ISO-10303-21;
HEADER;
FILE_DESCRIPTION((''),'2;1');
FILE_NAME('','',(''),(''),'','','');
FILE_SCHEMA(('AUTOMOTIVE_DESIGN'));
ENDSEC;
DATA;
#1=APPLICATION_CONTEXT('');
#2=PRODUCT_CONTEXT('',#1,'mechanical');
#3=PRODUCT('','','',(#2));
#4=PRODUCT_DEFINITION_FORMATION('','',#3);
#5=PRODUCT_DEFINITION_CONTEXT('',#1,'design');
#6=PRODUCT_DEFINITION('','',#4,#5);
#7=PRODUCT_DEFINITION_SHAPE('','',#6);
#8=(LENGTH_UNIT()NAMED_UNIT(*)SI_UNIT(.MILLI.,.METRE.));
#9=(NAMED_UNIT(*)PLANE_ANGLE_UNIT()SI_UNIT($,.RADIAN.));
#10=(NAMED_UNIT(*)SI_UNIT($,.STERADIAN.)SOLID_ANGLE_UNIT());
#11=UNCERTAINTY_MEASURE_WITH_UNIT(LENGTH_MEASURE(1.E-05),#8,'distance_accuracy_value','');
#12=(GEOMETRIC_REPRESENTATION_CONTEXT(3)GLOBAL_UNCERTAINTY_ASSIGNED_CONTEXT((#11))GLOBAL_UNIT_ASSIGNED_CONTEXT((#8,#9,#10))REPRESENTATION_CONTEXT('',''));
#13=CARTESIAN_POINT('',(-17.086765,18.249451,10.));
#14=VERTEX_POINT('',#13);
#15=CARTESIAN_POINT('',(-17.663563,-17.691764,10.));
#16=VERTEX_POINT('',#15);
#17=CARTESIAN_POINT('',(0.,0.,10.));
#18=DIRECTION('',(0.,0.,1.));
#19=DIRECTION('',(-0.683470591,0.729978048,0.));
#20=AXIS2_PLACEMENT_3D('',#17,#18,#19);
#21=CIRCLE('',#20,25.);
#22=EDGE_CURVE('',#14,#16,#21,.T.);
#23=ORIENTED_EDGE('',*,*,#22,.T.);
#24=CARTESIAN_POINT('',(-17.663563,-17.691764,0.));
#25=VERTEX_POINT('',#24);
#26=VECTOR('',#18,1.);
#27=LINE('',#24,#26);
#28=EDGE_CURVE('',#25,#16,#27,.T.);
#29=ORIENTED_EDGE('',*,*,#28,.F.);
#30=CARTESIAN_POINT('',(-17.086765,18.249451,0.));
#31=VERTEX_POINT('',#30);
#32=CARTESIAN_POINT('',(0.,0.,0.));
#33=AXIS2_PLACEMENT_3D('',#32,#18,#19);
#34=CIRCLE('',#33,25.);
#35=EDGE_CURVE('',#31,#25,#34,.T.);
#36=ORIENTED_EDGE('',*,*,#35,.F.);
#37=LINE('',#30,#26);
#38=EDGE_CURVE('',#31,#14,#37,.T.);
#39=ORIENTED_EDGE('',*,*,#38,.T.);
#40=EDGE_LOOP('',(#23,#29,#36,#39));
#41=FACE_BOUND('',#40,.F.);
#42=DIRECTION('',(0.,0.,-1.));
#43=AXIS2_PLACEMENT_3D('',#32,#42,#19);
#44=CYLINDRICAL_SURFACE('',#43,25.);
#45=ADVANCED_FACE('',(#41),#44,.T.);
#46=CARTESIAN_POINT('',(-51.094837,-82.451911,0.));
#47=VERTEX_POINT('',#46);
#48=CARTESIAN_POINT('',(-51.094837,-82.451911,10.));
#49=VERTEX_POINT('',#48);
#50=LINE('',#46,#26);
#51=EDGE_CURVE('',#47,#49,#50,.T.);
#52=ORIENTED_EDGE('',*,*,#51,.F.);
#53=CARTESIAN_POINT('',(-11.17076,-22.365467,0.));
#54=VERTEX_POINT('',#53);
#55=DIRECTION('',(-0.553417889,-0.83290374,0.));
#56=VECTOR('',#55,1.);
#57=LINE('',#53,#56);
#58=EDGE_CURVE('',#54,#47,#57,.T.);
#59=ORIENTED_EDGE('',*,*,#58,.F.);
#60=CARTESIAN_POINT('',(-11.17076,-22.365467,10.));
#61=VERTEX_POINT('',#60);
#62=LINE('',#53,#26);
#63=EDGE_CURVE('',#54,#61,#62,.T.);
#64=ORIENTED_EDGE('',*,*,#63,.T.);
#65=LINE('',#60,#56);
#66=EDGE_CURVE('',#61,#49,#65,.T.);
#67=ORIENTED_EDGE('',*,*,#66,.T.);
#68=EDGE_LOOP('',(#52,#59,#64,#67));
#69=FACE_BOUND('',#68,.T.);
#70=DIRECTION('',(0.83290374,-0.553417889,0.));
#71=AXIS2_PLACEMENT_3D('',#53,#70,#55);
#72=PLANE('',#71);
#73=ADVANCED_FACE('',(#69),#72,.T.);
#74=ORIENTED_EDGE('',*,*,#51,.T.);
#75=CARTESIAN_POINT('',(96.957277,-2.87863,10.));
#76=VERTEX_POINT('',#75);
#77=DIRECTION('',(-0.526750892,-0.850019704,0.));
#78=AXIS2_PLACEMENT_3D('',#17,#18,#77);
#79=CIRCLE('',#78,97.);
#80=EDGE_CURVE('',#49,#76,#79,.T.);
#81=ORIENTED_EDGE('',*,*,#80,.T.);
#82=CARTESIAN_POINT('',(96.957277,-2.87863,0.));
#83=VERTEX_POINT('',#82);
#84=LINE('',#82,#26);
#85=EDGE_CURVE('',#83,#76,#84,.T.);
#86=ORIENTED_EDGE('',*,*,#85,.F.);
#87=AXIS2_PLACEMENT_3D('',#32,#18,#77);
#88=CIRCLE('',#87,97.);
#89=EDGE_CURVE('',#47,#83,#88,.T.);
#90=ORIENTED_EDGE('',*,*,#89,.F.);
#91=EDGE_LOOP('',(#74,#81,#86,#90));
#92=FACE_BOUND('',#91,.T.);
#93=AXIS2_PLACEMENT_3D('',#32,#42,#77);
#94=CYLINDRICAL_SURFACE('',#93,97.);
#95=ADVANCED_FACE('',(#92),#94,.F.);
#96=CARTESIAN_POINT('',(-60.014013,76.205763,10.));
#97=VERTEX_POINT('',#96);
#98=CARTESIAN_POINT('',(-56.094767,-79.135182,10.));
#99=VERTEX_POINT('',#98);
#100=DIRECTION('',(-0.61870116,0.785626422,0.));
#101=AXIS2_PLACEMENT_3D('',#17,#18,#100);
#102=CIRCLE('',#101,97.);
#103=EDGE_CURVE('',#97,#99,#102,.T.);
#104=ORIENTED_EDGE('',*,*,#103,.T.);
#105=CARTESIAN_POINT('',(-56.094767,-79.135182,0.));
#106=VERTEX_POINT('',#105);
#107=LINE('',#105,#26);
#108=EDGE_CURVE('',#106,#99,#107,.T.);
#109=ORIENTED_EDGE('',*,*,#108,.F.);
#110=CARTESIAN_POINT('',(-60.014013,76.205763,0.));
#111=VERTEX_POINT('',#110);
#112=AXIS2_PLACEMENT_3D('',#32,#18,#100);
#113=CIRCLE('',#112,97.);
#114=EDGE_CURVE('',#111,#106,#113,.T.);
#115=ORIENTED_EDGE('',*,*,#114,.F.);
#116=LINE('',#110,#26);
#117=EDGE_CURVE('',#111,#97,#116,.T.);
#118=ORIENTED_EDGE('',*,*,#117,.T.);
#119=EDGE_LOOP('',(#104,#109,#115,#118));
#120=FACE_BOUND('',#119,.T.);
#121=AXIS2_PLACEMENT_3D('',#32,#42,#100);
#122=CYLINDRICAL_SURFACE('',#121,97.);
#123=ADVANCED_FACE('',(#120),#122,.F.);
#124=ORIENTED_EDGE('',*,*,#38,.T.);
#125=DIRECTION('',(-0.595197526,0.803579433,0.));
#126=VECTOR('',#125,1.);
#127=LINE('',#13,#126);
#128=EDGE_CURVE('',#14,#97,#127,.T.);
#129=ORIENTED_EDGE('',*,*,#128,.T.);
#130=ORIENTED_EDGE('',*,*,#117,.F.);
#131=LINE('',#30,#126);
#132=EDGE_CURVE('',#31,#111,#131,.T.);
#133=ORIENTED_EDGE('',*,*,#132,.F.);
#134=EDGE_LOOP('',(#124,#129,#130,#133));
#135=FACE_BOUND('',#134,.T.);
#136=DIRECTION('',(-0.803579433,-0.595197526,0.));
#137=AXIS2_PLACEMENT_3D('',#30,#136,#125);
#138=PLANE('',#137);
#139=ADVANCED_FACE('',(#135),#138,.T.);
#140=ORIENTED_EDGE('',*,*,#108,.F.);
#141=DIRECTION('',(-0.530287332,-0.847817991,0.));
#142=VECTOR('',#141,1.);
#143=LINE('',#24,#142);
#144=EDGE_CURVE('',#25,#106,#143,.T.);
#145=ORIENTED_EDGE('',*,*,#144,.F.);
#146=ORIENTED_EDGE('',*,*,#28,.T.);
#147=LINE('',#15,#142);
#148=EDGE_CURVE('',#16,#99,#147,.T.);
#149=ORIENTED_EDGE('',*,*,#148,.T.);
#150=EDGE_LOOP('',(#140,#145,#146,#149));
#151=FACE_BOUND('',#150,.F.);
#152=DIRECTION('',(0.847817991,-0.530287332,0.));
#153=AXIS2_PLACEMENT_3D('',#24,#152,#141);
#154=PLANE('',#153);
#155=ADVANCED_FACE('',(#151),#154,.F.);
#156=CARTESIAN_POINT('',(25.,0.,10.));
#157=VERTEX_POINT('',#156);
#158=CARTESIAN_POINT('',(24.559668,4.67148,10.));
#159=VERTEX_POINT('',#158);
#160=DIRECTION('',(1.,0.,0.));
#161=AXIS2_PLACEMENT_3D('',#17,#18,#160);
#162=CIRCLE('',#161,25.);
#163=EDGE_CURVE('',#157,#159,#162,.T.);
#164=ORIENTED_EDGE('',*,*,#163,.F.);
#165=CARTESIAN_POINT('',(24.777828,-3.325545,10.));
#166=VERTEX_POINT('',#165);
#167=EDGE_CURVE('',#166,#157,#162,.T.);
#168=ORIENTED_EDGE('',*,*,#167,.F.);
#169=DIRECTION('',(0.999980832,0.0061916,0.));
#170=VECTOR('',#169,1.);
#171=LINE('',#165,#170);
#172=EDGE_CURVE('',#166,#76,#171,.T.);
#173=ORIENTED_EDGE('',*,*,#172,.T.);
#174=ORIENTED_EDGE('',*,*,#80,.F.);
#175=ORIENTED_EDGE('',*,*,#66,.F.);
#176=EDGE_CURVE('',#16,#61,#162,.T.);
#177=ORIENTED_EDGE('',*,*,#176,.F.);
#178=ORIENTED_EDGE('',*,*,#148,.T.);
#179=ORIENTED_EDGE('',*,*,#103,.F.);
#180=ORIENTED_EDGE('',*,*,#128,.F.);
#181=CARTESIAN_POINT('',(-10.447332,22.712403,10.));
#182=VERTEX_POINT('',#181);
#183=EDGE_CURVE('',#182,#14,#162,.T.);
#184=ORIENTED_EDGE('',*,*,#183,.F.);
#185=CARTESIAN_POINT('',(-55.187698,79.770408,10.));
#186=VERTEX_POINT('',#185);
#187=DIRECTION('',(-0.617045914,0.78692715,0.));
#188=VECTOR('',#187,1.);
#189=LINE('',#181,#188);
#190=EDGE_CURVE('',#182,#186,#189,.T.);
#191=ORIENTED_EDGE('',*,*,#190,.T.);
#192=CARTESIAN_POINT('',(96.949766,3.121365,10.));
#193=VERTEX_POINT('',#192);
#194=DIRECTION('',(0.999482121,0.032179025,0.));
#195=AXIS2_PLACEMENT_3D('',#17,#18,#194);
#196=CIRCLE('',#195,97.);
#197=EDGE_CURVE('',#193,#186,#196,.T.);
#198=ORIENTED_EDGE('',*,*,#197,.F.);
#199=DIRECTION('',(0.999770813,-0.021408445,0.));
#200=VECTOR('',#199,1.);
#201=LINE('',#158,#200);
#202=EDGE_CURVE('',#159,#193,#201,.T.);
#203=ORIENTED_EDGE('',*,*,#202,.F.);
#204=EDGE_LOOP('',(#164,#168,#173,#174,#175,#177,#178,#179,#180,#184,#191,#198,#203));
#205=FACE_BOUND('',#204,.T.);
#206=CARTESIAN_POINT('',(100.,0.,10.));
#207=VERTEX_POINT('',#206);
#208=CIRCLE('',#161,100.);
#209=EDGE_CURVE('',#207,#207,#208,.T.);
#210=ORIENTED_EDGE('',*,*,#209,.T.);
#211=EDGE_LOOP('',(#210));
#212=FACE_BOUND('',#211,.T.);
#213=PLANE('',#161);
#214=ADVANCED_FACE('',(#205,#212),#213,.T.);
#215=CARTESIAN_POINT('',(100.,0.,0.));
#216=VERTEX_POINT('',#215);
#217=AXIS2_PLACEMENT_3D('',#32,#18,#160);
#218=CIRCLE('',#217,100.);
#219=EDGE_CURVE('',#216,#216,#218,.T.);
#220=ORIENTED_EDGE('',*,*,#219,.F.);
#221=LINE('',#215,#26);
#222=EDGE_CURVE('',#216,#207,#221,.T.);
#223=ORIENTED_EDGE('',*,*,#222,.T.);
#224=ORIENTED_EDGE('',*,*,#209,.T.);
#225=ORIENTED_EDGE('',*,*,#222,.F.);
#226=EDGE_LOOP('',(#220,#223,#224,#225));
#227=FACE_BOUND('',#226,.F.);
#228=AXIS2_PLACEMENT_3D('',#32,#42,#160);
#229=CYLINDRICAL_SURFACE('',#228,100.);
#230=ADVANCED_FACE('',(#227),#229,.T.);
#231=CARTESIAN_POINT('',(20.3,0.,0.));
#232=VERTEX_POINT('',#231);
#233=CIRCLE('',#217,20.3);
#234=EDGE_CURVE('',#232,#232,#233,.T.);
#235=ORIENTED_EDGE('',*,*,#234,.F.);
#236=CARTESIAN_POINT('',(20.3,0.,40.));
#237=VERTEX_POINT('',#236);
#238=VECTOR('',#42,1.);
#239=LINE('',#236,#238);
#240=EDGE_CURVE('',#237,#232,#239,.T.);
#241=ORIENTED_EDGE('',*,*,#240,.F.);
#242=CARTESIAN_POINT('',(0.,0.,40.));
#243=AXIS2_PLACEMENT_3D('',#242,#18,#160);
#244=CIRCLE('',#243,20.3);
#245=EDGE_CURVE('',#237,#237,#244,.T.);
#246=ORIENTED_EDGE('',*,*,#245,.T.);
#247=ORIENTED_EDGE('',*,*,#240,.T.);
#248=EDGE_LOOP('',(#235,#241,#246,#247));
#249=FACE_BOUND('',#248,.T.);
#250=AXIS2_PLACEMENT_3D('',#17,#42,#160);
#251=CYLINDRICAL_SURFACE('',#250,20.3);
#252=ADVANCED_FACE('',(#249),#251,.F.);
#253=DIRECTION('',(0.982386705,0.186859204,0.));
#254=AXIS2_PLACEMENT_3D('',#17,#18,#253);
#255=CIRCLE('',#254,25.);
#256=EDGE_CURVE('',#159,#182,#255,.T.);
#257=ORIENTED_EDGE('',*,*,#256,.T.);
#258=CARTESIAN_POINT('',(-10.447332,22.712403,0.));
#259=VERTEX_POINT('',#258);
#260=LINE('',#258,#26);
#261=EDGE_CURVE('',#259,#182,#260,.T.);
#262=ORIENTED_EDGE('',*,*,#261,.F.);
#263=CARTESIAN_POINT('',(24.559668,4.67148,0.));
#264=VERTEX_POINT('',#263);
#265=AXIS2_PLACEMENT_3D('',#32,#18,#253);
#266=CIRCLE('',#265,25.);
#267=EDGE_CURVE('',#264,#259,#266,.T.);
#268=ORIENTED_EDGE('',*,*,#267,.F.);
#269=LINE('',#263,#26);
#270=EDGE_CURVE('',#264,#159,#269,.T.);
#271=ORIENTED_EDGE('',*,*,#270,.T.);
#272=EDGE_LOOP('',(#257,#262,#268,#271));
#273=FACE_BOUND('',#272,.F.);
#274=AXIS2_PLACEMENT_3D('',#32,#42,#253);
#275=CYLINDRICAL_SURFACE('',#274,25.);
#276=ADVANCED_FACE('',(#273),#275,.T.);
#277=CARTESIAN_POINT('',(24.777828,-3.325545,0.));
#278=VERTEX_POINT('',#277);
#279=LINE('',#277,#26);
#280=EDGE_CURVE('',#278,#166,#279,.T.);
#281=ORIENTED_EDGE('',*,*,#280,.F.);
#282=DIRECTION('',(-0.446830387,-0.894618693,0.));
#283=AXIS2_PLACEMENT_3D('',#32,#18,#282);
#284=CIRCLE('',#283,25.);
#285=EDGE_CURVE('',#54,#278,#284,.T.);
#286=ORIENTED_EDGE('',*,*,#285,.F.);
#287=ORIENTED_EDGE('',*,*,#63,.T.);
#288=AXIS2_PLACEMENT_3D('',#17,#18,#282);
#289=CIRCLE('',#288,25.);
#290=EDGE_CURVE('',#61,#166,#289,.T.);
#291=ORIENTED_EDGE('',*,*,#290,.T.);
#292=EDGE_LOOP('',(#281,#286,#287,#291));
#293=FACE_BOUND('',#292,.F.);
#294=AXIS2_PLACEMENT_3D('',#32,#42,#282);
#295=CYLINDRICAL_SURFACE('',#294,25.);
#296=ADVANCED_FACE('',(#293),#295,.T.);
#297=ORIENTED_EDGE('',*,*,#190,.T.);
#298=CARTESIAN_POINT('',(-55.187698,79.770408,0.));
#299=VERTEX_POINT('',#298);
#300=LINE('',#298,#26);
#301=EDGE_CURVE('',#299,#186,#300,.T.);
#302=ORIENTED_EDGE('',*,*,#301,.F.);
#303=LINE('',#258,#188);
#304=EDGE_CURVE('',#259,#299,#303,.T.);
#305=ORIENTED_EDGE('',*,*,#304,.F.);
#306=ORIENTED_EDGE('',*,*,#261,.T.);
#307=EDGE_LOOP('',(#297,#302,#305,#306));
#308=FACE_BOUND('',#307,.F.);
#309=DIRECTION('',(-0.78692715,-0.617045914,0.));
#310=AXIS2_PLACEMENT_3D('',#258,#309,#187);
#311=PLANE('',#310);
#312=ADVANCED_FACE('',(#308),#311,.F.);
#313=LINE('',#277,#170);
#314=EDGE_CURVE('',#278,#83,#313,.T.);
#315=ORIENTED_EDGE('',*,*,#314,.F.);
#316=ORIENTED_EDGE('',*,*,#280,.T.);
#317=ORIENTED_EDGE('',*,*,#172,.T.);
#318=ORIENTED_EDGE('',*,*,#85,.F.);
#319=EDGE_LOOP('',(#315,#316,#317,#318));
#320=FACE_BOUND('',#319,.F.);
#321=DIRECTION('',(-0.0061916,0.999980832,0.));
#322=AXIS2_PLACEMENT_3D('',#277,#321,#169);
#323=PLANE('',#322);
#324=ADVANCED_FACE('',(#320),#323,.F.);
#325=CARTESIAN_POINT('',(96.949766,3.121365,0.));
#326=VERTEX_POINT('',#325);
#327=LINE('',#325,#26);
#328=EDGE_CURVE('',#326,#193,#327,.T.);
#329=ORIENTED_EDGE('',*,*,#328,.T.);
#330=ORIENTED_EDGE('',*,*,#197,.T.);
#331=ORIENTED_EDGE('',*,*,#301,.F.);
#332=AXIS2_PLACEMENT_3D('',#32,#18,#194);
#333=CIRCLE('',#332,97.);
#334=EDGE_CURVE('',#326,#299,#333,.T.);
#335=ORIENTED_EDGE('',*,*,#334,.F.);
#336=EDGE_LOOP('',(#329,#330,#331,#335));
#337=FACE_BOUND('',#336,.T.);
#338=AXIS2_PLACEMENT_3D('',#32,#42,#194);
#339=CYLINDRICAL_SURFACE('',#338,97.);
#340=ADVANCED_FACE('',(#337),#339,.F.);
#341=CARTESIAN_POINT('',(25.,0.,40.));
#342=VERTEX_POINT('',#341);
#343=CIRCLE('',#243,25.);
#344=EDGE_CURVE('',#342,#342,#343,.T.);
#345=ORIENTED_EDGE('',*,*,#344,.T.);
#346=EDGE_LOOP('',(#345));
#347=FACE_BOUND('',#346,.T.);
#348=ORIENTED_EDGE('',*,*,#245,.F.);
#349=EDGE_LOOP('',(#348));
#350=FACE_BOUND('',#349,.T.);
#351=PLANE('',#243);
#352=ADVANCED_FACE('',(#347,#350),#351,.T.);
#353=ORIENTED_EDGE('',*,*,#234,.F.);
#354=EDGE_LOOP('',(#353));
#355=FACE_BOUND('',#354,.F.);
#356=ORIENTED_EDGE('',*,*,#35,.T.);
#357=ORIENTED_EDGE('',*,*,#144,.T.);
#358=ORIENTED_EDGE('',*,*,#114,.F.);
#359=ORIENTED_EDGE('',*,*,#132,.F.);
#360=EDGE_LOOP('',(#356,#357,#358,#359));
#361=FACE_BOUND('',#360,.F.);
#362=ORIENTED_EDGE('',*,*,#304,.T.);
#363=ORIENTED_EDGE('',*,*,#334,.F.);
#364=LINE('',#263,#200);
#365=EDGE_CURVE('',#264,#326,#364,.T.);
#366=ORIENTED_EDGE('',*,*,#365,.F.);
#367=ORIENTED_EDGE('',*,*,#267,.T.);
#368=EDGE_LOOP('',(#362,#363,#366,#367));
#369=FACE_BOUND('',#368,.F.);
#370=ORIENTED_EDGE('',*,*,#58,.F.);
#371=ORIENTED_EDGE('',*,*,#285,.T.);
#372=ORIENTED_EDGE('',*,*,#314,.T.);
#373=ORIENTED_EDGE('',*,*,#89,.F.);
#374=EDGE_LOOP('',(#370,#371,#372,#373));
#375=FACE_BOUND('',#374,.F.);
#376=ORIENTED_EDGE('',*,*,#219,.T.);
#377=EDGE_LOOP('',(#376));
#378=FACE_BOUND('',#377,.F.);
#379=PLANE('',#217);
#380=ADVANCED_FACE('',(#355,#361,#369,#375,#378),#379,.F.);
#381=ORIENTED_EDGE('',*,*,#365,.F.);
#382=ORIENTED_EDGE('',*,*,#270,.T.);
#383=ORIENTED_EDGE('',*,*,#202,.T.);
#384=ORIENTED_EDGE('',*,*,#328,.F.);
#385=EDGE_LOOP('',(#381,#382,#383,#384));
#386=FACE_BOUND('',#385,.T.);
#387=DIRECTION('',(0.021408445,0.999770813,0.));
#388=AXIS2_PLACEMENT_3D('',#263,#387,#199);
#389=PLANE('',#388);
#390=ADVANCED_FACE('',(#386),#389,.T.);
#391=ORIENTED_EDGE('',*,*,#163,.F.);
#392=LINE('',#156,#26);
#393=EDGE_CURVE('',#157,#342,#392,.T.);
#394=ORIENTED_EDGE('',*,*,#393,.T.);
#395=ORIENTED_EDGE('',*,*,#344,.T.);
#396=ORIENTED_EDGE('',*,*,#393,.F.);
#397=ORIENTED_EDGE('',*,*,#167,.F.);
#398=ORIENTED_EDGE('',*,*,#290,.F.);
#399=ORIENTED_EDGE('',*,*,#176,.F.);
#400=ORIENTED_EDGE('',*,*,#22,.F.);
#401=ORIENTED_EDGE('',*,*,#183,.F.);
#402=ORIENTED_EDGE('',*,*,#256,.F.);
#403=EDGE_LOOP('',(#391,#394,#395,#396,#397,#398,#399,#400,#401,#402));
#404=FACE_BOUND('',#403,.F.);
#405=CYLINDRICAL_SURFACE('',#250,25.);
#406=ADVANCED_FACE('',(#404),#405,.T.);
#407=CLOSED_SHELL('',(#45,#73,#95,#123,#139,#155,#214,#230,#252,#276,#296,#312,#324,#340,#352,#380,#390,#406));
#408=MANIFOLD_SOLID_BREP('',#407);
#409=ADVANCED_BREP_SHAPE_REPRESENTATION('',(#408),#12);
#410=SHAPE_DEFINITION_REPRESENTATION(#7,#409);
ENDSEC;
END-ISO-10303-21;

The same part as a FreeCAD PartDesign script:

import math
import FreeCAD as App
import Part
import Sketcher

V = App.Vector
Q = App.Units.Quantity

doc = App.newDocument("Part")
body = doc.addObject("PartDesign::Body", "Body")

# Sketch on XY plane
sketch1 = body.newObject("Sketcher::SketchObject", "Sketch")
sketch1.AttachmentSupport = (doc.getObject("XY_Plane"), [""])
sketch1.MapMode = "FlatFace"
sketch1.addGeometry([
    Part.Circle(V(0, 0, 0), V(0, 0, 1), 100),  # 0
    Part.ArcOfCircle(Part.Circle(V(0, 0, 0), V(0, 0, 1), 25), math.radians(133.115446), math.radians(225.045702)),  # 1
    Part.LineSegment(V(-17.663563, -17.691764, 0), V(-56.094767, -79.135182, 0)),  # 2
    Part.ArcOfCircle(Part.Circle(V(0, 0, 0), V(0, 0, 1), 97), math.radians(128.221348), math.radians(234.669178)),  # 3
    Part.LineSegment(V(-60.014013, 76.205763, 0), V(-17.086765, 18.249451, 0)),  # 4
    Part.ArcOfCircle(Part.Circle(V(0, 0, 0), V(0, 0, 1), 25), math.radians(-116.540506), math.radians(-7.644245)),  # 5
    Part.LineSegment(V(24.777828, -3.325545, 0), V(96.957277, -2.87863, 0)),  # 6
    Part.ArcOfCircle(Part.Circle(V(0, 0, 0), V(0, 0, 1), 97), math.radians(-121.786187), math.radians(-1.700593)),  # 7
    Part.LineSegment(V(-51.094837, -82.451911, 0), V(-11.17076, -22.365467, 0)),  # 8
    Part.Circle(V(0, 0, 0), V(0, 0, 1), 20.3),  # 9
    Part.ArcOfCircle(Part.Circle(V(0, 0, 0), V(0, 0, 1), 97), math.radians(1.844041), math.radians(124.676714)),  # 10
    Part.LineSegment(V(96.949766, 3.121365, 0), V(24.559668, 4.67148, 0)),  # 11
    Part.ArcOfCircle(Part.Circle(V(0, 0, 0), V(0, 0, 1), 25), math.radians(10.769547), math.radians(114.701654)),  # 12
    Part.LineSegment(V(-10.447332, 22.712403, 0), V(-55.187698, 79.770408, 0)),  # 13
], False)
sketch1.addConstraint([
    Sketcher.Constraint("Coincident", 1, 2, 2, 1),
    Sketcher.Constraint("Coincident", 2, 2, 3, 2),
    Sketcher.Constraint("Coincident", 3, 1, 4, 1),
    Sketcher.Constraint("Coincident", 4, 2, 1, 1),
    Sketcher.Constraint("Coincident", 5, 2, 6, 1),
    Sketcher.Constraint("Coincident", 6, 2, 7, 2),
    Sketcher.Constraint("Coincident", 7, 1, 8, 1),
    Sketcher.Constraint("Coincident", 8, 2, 5, 1),
    Sketcher.Constraint("Coincident", 10, 1, 11, 1),
    Sketcher.Constraint("Coincident", 11, 2, 12, 1),
    Sketcher.Constraint("Coincident", 12, 2, 13, 1),
    Sketcher.Constraint("Coincident", 13, 2, 10, 2),
    Sketcher.Constraint("Coincident", 0, 3, -1, 1),
    Sketcher.Constraint("Coincident", 1, 3, -1, 1),
    Sketcher.Constraint("Coincident", 3, 3, -1, 1),
    Sketcher.Constraint("Coincident", 5, 3, -1, 1),
    Sketcher.Constraint("Coincident", 7, 3, -1, 1),
    Sketcher.Constraint("Coincident", 9, 3, -1, 1),
    Sketcher.Constraint("Coincident", 10, 3, -1, 1),
    Sketcher.Constraint("Coincident", 12, 3, -1, 1),
    Sketcher.Constraint("Equal", 1, 5),
    Sketcher.Constraint("Equal", 3, 7),
    Sketcher.Constraint("Equal", 7, 10),
    Sketcher.Constraint("Equal", 5, 12),
    Sketcher.Constraint("Diameter", 0, Q("200 mm")),
    Sketcher.Constraint("Radius", 1, Q("25 mm")),
    Sketcher.Constraint("Radius", 3, Q("97 mm")),
    Sketcher.Constraint("Diameter", 9, Q("40.6 mm")),
    Sketcher.Constraint("DistanceX", 13, 2, -1, 1, Q("55.187698 mm")),
    Sketcher.Constraint("Distance", 4, Q("72.122692 mm")),
    Sketcher.Constraint("DistanceY", -1, 1, 4, 2, Q("18.249451 mm")),
    Sketcher.Constraint("DistanceY", 6, 2, -1, 1, Q("2.87863 mm")),
    Sketcher.Constraint("DistanceY", 7, 1, -1, 1, Q("82.451911 mm")),
    Sketcher.Constraint("DistanceX", 8, 2, -1, 1, Q("11.17076 mm")),
    Sketcher.Constraint("DistanceY", -1, 1, 11, 2, Q("4.67148 mm")),
    Sketcher.Constraint("DistanceX", 5, 2, 6, 2, Q("72.179449 mm")),
    Sketcher.Constraint("DistanceX", 2, 2, 7, 1, Q("4.999931 mm")),
    Sketcher.Constraint("DistanceX", 10, 1, 6, 2, Q("0.007511 mm")),
    Sketcher.Constraint("DistanceY", 4, 2, 12, 2, Q("4.462952 mm")),
    Sketcher.Constraint("Distance", 2, Q("72.472416 mm")),
])
pad1 = body.newObject("PartDesign::Pad", "Pad")
pad1.Profile = sketch1
pad1.Length = 10

# Sketch on XY plane
sketch2 = body.newObject("Sketcher::SketchObject", "Sketch001")
sketch2.AttachmentSupport = (doc.getObject("XY_Plane"), [""])
sketch2.MapMode = "FlatFace"
sketch2.AttachmentOffset = App.Placement(V(0, 0, 10), App.Rotation())
sketch2.addGeometry([
    Part.Circle(V(0, 0, 0), V(0, 0, 1), 25),
    Part.Circle(V(0, 0, 0), V(0, 0, 1), 20.3),
], False)
sketch2.addConstraint([
    Sketcher.Constraint("Coincident", 0, 3, -1, 1),
    Sketcher.Constraint("Coincident", 1, 3, -1, 1),
    Sketcher.Constraint("Diameter", 0, Q("50 mm")),
    Sketcher.Constraint("Diameter", 1, Q("40.6 mm")),
])
pad2 = body.newObject("PartDesign::Pad", "Pad001")
pad2.Profile = sketch2
pad2.Length = 30

doc.recompute()
